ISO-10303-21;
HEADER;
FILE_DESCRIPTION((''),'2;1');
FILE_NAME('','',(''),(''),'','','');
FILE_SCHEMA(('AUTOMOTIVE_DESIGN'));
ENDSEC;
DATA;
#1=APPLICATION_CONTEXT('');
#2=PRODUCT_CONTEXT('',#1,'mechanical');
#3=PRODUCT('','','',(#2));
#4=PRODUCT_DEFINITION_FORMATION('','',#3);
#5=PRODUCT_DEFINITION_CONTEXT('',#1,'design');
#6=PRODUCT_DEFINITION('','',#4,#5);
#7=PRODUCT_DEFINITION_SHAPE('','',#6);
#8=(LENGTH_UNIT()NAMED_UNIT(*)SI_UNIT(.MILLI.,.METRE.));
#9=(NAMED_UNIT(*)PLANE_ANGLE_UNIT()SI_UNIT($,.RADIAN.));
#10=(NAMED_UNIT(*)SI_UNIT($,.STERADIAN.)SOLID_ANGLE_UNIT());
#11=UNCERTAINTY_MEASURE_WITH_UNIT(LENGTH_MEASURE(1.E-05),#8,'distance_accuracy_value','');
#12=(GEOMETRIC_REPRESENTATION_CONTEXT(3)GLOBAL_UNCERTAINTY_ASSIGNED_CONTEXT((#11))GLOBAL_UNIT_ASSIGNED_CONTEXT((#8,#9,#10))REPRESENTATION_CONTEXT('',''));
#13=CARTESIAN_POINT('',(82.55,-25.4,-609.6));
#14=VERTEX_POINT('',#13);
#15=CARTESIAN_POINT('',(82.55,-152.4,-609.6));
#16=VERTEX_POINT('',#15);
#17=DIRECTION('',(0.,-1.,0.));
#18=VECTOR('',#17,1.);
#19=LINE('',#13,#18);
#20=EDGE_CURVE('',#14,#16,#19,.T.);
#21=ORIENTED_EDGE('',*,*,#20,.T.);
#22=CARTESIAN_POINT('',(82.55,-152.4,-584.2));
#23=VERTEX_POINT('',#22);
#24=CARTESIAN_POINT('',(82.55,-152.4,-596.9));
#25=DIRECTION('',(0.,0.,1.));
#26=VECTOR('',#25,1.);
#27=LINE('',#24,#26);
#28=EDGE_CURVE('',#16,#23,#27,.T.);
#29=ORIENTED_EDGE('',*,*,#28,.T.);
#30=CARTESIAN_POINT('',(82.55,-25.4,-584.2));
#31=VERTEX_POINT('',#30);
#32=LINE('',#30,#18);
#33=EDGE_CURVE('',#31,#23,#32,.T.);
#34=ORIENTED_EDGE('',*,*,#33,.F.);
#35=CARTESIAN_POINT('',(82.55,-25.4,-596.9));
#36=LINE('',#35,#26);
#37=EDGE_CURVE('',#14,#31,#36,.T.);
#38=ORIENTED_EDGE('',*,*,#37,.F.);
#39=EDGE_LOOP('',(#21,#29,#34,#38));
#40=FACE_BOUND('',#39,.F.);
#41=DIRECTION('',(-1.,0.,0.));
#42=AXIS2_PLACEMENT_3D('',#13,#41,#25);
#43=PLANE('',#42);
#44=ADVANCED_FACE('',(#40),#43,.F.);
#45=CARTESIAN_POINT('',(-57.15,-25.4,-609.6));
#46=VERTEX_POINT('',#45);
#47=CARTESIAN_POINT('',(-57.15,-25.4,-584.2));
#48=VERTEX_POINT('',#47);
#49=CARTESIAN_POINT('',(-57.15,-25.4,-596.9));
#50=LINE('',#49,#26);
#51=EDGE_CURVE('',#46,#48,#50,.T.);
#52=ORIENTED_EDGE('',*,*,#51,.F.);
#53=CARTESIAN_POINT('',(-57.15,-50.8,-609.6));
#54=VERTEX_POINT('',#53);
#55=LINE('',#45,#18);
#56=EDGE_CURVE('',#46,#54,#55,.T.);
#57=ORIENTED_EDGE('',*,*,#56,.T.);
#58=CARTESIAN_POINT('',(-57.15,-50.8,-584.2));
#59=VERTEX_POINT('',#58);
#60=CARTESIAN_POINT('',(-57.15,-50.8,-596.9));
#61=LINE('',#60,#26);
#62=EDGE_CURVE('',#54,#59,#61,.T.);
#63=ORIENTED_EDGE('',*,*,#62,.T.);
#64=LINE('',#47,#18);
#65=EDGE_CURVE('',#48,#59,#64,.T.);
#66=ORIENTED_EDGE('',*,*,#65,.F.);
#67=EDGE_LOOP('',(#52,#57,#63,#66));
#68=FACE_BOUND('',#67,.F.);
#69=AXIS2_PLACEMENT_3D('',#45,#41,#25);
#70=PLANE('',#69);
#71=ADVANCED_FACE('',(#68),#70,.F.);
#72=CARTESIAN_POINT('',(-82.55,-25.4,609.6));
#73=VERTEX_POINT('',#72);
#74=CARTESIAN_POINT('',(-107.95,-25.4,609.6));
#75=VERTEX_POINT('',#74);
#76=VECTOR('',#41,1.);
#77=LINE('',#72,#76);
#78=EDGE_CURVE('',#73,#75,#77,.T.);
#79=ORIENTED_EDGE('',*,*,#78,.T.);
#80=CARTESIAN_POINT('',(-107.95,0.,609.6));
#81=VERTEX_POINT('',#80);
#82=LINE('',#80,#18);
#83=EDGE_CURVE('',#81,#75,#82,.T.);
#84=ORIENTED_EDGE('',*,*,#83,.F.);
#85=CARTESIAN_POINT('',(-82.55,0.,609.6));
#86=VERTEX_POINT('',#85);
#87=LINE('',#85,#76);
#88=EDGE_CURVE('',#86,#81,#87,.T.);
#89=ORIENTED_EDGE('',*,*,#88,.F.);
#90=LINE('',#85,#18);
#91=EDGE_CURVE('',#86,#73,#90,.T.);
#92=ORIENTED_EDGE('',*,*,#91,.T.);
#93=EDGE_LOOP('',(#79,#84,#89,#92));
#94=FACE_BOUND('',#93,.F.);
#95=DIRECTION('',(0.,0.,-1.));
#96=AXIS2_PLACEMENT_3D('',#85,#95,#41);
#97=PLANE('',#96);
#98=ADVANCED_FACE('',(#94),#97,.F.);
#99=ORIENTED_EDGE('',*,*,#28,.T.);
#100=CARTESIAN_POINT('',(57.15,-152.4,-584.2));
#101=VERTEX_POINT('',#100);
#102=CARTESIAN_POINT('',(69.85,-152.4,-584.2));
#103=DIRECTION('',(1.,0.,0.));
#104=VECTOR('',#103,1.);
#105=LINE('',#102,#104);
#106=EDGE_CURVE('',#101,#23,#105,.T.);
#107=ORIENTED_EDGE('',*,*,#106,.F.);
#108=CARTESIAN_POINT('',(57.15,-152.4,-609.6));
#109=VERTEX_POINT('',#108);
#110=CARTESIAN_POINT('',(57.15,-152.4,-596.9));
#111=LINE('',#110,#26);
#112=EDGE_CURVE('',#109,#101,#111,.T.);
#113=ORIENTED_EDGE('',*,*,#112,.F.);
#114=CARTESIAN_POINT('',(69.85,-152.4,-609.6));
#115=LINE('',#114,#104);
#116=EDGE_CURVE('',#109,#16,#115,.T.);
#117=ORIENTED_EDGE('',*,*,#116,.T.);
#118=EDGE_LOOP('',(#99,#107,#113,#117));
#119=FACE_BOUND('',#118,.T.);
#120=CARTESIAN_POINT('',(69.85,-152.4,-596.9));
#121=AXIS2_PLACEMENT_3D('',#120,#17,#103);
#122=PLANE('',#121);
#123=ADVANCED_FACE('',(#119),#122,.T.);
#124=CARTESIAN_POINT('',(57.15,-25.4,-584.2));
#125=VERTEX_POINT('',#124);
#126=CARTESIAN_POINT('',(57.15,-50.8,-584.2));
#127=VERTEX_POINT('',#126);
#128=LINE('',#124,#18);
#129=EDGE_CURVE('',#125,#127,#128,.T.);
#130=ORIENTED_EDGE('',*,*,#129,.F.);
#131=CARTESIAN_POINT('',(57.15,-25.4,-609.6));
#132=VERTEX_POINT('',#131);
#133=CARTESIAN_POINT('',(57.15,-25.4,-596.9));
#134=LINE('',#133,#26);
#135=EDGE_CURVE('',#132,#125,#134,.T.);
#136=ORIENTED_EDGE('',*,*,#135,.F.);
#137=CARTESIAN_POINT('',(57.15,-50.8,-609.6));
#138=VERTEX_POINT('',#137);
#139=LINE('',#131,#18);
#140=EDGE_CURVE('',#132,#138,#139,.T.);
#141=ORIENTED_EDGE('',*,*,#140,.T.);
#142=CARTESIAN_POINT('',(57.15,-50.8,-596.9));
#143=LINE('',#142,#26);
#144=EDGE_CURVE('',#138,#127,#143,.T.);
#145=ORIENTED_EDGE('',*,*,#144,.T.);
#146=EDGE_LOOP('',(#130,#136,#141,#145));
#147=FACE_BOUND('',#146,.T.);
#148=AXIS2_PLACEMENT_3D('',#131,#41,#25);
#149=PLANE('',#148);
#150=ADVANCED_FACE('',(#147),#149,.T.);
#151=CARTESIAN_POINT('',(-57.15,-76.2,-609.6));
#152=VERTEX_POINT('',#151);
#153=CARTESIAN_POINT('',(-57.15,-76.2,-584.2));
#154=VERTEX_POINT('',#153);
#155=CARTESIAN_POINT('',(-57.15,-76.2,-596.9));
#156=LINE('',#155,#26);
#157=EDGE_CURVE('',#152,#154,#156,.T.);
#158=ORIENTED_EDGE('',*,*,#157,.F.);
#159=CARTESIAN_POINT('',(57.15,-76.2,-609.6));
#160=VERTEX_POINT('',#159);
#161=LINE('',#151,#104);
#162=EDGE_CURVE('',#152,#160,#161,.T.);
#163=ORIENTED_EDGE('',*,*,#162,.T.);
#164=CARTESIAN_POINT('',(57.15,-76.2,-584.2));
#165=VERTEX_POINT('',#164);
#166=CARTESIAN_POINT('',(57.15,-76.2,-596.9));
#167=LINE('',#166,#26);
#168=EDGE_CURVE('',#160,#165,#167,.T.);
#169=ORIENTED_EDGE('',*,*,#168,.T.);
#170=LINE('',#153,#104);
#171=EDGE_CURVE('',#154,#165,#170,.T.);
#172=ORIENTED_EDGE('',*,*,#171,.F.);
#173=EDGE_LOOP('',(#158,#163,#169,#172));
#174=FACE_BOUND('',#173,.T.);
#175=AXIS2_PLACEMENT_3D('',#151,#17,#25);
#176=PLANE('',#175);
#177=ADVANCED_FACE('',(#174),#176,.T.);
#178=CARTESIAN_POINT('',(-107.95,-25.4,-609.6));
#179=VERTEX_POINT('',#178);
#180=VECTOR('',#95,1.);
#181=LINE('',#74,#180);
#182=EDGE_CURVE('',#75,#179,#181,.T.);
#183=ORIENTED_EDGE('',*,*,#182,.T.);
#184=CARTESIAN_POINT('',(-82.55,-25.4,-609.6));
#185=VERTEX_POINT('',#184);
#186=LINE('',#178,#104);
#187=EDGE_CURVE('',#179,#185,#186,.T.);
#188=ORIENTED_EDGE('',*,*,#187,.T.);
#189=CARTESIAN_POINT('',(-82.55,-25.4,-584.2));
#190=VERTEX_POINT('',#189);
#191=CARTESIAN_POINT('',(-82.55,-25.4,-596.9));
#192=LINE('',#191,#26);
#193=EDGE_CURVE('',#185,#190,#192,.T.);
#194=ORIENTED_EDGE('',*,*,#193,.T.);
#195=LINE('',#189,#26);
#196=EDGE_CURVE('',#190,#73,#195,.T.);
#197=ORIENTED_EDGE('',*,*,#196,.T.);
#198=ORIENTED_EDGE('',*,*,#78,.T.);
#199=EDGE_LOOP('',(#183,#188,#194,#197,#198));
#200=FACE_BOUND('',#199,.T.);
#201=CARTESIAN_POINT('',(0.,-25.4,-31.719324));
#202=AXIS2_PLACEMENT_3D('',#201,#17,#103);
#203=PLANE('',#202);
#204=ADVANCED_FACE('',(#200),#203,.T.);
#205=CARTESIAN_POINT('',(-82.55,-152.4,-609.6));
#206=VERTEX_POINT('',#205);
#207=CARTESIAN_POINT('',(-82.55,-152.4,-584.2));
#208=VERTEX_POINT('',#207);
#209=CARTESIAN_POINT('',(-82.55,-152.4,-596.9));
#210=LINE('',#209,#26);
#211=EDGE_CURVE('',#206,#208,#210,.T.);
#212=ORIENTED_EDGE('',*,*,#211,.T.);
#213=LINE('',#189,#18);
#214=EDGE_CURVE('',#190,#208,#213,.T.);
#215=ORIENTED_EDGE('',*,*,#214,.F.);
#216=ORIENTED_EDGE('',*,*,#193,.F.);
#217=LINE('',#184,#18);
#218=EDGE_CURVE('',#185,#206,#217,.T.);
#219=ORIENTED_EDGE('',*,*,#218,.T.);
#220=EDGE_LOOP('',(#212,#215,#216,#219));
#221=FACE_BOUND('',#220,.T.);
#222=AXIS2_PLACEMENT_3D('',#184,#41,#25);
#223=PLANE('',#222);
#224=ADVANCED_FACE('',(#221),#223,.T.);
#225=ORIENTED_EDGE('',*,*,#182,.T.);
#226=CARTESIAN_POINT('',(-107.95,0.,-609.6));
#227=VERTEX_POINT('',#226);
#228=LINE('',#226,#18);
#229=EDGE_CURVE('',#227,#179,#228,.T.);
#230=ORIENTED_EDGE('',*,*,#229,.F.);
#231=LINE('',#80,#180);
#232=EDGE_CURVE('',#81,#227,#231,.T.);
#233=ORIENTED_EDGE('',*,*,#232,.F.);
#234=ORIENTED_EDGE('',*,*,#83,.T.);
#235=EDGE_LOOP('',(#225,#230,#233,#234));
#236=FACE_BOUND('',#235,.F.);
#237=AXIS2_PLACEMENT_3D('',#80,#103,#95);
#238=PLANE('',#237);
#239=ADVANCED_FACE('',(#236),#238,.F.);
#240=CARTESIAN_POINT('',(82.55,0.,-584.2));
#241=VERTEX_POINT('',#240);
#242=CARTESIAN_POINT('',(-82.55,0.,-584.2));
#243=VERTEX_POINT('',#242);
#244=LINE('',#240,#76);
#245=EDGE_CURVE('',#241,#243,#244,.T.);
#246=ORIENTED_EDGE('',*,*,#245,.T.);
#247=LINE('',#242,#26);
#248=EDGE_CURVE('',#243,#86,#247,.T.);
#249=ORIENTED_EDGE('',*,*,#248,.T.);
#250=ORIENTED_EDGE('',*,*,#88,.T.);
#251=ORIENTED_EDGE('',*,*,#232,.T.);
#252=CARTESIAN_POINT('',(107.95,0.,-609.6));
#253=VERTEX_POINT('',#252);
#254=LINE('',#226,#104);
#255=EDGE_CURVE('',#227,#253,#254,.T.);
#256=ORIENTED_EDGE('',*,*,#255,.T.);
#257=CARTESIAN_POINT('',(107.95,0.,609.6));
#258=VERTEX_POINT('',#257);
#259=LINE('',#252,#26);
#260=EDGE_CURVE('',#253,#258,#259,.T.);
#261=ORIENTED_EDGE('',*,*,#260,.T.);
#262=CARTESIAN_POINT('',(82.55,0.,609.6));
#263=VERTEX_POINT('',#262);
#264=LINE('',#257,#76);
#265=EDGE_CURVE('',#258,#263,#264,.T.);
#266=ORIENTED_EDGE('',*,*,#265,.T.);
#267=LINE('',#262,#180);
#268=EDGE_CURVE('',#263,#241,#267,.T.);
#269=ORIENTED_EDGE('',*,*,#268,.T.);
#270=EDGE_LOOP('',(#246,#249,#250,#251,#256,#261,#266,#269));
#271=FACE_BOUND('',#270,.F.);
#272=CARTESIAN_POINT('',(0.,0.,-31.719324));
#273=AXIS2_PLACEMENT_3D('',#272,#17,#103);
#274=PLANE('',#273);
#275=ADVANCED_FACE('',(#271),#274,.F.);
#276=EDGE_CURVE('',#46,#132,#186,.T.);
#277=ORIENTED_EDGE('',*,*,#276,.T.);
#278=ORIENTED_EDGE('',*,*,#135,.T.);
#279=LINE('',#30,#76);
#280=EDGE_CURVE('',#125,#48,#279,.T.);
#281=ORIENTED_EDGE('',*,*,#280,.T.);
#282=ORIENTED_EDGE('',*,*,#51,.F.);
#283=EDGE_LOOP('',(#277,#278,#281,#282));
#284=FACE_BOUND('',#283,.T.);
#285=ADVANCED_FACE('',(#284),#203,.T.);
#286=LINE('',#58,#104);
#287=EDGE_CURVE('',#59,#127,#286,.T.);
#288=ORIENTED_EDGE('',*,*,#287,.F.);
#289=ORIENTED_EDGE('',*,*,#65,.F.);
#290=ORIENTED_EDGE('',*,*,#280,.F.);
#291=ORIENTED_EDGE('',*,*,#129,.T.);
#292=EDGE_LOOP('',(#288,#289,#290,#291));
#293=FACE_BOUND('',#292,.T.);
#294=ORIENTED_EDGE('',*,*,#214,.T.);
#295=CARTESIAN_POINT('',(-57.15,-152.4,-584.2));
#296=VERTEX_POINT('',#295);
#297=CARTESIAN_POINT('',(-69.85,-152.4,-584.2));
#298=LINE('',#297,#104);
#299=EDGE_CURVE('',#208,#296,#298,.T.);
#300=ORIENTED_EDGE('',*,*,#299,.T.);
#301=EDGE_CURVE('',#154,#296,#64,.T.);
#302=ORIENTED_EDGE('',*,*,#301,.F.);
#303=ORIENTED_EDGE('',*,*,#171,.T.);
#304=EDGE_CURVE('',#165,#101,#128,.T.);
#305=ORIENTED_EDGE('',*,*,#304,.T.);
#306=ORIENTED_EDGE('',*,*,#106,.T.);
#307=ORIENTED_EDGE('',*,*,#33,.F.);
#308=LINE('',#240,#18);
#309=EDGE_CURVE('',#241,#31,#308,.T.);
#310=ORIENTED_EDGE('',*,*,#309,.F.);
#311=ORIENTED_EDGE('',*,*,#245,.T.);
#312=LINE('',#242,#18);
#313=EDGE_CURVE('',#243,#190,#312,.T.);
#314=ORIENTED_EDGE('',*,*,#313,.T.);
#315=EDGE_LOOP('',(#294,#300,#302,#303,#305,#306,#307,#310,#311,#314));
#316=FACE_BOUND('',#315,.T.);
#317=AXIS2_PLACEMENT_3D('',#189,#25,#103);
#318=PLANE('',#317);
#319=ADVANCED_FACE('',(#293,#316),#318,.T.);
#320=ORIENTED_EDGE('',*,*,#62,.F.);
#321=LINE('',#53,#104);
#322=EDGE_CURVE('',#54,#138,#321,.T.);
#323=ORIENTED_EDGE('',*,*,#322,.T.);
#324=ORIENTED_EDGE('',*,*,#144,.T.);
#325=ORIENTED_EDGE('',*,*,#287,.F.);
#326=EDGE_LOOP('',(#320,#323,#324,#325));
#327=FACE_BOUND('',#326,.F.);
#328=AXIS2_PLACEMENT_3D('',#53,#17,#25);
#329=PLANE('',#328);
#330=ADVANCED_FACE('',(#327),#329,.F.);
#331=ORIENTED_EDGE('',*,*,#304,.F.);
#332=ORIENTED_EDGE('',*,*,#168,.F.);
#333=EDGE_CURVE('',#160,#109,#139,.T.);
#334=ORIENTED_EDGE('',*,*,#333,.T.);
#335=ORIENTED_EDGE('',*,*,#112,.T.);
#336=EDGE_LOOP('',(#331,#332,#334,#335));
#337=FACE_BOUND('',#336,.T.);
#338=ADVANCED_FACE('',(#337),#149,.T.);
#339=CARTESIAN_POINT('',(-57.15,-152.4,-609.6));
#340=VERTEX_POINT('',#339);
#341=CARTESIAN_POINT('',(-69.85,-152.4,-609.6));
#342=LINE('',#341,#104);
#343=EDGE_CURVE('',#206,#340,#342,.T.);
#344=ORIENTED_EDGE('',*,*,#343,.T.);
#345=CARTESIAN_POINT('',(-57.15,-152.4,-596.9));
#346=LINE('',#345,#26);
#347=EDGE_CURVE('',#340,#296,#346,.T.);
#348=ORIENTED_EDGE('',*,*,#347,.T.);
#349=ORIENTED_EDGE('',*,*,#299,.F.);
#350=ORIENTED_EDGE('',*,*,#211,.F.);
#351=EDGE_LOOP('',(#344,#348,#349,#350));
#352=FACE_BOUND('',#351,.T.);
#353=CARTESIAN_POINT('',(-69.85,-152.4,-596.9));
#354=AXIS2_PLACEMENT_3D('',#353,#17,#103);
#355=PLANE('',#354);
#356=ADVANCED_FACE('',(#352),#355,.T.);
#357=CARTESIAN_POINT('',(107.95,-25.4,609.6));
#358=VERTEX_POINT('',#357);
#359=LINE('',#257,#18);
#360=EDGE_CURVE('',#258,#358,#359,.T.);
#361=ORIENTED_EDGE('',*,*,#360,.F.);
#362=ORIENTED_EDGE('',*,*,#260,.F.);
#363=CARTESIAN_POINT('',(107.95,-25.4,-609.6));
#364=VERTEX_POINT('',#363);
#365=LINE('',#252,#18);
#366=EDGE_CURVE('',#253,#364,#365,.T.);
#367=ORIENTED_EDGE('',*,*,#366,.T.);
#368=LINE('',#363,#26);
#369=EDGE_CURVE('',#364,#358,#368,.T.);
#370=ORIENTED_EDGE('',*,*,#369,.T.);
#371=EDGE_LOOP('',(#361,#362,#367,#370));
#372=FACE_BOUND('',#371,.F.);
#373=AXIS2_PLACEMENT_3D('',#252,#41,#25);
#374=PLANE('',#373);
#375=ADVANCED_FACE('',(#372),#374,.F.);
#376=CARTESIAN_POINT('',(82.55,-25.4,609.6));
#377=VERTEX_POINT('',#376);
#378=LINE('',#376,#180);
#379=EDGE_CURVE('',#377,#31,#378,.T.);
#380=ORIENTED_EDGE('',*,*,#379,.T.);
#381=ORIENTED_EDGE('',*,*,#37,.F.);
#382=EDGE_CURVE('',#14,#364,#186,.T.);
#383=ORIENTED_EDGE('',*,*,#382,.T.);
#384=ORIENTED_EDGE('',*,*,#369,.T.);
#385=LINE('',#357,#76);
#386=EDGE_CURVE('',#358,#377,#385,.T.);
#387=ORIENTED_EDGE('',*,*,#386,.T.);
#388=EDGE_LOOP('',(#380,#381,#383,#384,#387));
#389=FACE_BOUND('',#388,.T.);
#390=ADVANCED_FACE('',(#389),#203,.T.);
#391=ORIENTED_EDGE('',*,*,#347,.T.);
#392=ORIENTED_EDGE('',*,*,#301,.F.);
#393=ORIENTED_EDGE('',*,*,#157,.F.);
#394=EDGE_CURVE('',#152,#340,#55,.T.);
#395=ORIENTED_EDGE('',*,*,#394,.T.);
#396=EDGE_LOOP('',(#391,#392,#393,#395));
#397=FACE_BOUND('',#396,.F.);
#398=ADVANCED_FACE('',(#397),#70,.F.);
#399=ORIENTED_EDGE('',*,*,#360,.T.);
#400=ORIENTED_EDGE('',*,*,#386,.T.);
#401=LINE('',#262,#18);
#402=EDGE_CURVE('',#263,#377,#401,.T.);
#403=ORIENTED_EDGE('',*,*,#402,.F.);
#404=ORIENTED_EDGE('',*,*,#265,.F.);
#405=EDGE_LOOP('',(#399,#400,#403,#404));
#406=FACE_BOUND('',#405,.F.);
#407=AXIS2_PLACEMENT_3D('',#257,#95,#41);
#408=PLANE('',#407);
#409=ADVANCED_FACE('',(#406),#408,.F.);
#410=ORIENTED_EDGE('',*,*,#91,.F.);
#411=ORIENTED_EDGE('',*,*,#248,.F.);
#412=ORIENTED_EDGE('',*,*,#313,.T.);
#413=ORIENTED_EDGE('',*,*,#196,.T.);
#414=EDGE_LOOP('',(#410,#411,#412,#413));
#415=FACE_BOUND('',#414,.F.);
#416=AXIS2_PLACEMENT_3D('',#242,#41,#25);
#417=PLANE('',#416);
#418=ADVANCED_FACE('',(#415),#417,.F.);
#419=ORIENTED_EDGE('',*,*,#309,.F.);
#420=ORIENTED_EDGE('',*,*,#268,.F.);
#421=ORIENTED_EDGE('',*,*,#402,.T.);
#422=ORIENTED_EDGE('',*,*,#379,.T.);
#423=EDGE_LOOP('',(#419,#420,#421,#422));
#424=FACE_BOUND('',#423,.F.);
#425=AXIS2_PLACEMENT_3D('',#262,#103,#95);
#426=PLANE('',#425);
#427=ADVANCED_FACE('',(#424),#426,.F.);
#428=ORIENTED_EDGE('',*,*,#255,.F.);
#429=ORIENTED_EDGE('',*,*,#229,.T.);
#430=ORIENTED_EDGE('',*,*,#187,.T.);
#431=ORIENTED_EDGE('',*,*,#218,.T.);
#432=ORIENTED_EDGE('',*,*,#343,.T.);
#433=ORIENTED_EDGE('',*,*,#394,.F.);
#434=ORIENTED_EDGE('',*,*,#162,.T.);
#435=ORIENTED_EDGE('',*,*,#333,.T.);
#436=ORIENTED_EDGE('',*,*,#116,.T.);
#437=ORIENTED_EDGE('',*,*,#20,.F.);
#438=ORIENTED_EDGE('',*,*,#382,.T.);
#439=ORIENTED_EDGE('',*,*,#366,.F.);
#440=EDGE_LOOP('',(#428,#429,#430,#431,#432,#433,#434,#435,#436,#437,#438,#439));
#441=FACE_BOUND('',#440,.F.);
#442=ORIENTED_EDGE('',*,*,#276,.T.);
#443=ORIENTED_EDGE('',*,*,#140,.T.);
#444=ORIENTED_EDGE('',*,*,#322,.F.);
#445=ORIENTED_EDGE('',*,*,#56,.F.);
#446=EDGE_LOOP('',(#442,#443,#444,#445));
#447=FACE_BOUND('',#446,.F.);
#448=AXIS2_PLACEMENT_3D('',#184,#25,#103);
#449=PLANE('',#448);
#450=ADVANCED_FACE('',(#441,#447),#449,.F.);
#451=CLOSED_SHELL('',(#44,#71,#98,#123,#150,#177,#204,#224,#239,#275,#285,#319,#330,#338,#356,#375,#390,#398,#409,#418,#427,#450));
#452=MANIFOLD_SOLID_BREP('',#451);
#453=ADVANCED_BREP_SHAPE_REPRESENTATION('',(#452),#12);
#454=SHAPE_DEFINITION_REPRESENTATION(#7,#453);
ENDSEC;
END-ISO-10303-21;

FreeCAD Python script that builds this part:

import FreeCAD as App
import Part
import Sketcher

V = App.Vector
Q = App.Units.Quantity


def add_polygon(sketch, points):
    """Adds a closed chain of lines whose ends are joined by coincident constraints."""
    first, n = sketch.GeometryCount, len(points)
    for a, b in zip(points, points[1:] + points[:1]):
        sketch.addGeometry(Part.LineSegment(App.Vector(*a, 0), App.Vector(*b, 0)), False)
    for i in range(n):
        sketch.addConstraint(Sketcher.Constraint("Coincident", first + i, 2, first + (i + 1) % n, 1))

doc = App.newDocument("Part")
body = doc.addObject("PartDesign::Body", "Body")

# Sketch on XZ plane
sketch1 = body.newObject("Sketcher::SketchObject", "Sketch")
sketch1.AttachmentSupport = (doc.getObject("XZ_Plane"), [""])
sketch1.MapMode = "FlatFace"
add_polygon(sketch1, [(107.95, 609.6), (82.55, 609.6), (82.55, -584.2), (-82.55, -584.2), (-82.55, 609.6), (-107.95, 609.6), (-107.95, -609.6), (107.95, -609.6)])  # lines 0-7
sketch1.addConstraint(Sketcher.Constraint("Horizontal", 0))
sketch1.addConstraint(Sketcher.Constraint("Vertical", 1))
sketch1.addConstraint(Sketcher.Constraint("Horizontal", 2))
sketch1.addConstraint(Sketcher.Constraint("Vertical", 3))
sketch1.addConstraint(Sketcher.Constraint("Horizontal", 4))
sketch1.addConstraint(Sketcher.Constraint("Vertical", 5))
sketch1.addConstraint(Sketcher.Constraint("Horizontal", 6))
sketch1.addConstraint(Sketcher.Constraint("Vertical", 7))
sketch1.addConstraint(Sketcher.Constraint("Symmetric", 4, 2, 6, 2, -1, 1))
sketch1.addConstraint(Sketcher.Constraint("Symmetric", 0, 2, 3, 2, -2))
sketch1.addConstraint(Sketcher.Constraint("DistanceX", 0, 2, 0, 1, Q("1 in")))
sketch1.addConstraint(Sketcher.Constraint("DistanceY", 1, 2, 1, 1, Q("47 in")))
sketch1.addConstraint(Sketcher.Constraint("DistanceY", 5, 2, 5, 1, Q("48 in")))
sketch1.addConstraint(Sketcher.Constraint("DistanceX", 2, 2, 2, 1, Q("6.5 in")))
pad1 = body.newObject("PartDesign::Pad", "Pad")
pad1.Profile = sketch1
pad1.Length = Q("1 in")

# Sketch on XZ plane
sketch2 = body.newObject("Sketcher::SketchObject", "Sketch001")
sketch2.AttachmentSupport = (doc.getObject("XZ_Plane"), [""])
sketch2.MapMode = "FlatFace"
sketch2.AttachmentOffset = App.Placement(V(0, 0, 1 * 25.4), App.Rotation())
add_polygon(sketch2, [(-82.55, -584.2), (-82.55, -609.6), (-57.15, -609.6), (-57.15, -584.2)])  # lines 0-3
add_polygon(sketch2, [(57.15, -584.2), (57.15, -609.6), (82.55, -609.6), (82.55, -584.2)])  # lines 4-7
sketch2.addConstraint(Sketcher.Constraint("Vertical", 0))
sketch2.addConstraint(Sketcher.Constraint("Horizontal", 1))
sketch2.addConstraint(Sketcher.Constraint("Vertical", 2))
sketch2.addConstraint(Sketcher.Constraint("Horizontal", 3))
sketch2.addConstraint(Sketcher.Constraint("Vertical", 4))
sketch2.addConstraint(Sketcher.Constraint("Horizontal", 5))
sketch2.addConstraint(Sketcher.Constraint("Vertical", 6))
sketch2.addConstraint(Sketcher.Constraint("Horizontal", 7))
sketch2.addConstraint(Sketcher.Constraint("Symmetric", 1, 2, 4, 2, -2))
sketch2.addConstraint(Sketcher.Constraint("Symmetric", 3, 2, 6, 2, -2))
sketch2.addConstraint(Sketcher.Constraint("Equal", 7, 0))
sketch2.addConstraint(Sketcher.Constraint("DistanceX", 1, 1, 1, 2, Q("1 in")))
sketch2.addConstraint(Sketcher.Constraint("DistanceY", 0, 2, -1, 1, Q("24 in")))
sketch2.addConstraint(Sketcher.Constraint("DistanceX", 1, 2, 4, 2, Q("4.5 in")))
pad2 = body.newObject("PartDesign::Pad", "Pad001")
pad2.Profile = sketch2
pad2.Length = Q("5 in")

# Sketch on YZ plane
sketch3 = body.newObject("Sketcher::SketchObject", "Sketch002")
sketch3.AttachmentSupport = (doc.getObject("YZ_Plane"), [""])
sketch3.MapMode = "FlatFace"
sketch3.AttachmentOffset = App.Placement(V(0, 0, -2.25 * 25.4), App.Rotation())
add_polygon(sketch3, [(-76.2, -584.2), (-76.2, -609.6), (-50.8, -609.6), (-50.8, -584.2)])  # lines 0-3
sketch3.addConstraint(Sketcher.Constraint("Vertical", 0))
sketch3.addConstraint(Sketcher.Constraint("Horizontal", 1))
sketch3.addConstraint(Sketcher.Constraint("Vertical", 2))
sketch3.addConstraint(Sketcher.Constraint("Horizontal", 3))
sketch3.addConstraint(Sketcher.Constraint("Equal", 3, 0))
sketch3.addConstraint(Sketcher.Constraint("DistanceX", 1, 1, 1, 2, Q("1 in")))
sketch3.addConstraint(Sketcher.Constraint("DistanceX", 0, 2, -1, 1, Q("3 in")))
sketch3.addConstraint(Sketcher.Constraint("DistanceY", 0, 2, -1, 1, Q("24 in")))
pad3 = body.newObject("PartDesign::Pad", "Pad002")
pad3.Profile = sketch3
pad3.Length = Q("4.5 in")

doc.recompute()
